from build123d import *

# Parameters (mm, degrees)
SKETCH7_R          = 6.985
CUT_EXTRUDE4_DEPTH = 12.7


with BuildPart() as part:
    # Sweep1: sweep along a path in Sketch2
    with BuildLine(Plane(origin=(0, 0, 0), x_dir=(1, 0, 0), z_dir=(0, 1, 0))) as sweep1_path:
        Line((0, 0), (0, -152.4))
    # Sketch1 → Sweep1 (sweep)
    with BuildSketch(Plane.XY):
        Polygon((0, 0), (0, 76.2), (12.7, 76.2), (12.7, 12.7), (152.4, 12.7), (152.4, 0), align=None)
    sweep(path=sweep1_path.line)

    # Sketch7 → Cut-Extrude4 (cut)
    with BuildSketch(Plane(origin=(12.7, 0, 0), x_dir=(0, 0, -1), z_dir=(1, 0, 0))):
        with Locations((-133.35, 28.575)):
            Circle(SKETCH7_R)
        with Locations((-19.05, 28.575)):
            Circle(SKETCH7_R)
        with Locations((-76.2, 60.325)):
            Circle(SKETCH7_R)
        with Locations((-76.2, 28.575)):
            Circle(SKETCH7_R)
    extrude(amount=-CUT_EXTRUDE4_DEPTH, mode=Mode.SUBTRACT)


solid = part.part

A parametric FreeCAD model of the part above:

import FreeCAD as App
import Part
import Sketcher
from FreeCAD import Vector
Q = App.Units.Quantity


def add_polygon(sketch, points):
    """Adds a closed chain of lines whose ends are joined by coincident constraints."""
    first, n = sketch.GeometryCount, len(points)
    for a, b in zip(points, points[1:] + points[:1]):
        sketch.addGeometry(Part.LineSegment(App.Vector(*a, 0), App.Vector(*b, 0)), False)
    for i in range(n):
        sketch.addConstraint(Sketcher.Constraint("Coincident", first + i, 2, first + (i + 1) % n, 1))

doc = App.newDocument("Part")
params = doc.addObject("Spreadsheet::Sheet", "Params")
for row, (alias, value) in enumerate([
    ("sketch1_width", "6 in"),
    ("sketch1_height", "3 in"),
    ("sketch1_width2", "5.5 in"),
    ("sketch2_height", "6 in"),
    ("sketch3_diameter", "0.55 in"),
    ("pocket1_length", "0.5 in"),
], start=1):
    params.set(f"A{row}", alias)
    params.set(f"B{row}", "=" + value)
    params.setAlias(f"B{row}", alias)

body = doc.addObject("PartDesign::Body", "Body")

# Sketch on XY plane
sketch1 = body.newObject("Sketcher::SketchObject", "Sketch")
sketch1.AttachmentSupport = (doc.getObject("XY_Plane"), [""])
sketch1.MapMode = "FlatFace"
add_polygon(sketch1, [(0, 76.2), (0, 0), (152.4, 0), (152.4, 12.7), (12.7, 12.7), (12.7, 76.2)])  # lines 0-5
sketch1.addConstraint([
    Sketcher.Constraint("Vertical", 0),
    Sketcher.Constraint("Horizontal", 1),
    Sketcher.Constraint("Vertical", 2),
    Sketcher.Constraint("Horizontal", 3),
    Sketcher.Constraint("Vertical", 4),
    Sketcher.Constraint("Horizontal", 5),
    Sketcher.Constraint("Coincident", 0, 2, -1, 1),
    Sketcher.Constraint("Equal", 5, 2),
    Sketcher.Constraint("DistanceX", 1, 1, 1, 2, Q("6 in")),
    Sketcher.Constraint("DistanceY", 0, 2, 0, 1, Q("3 in")),
    Sketcher.Constraint("DistanceX", 3, 2, 3, 1, Q("5.5 in")),
])
sketch1.setExpression("Constraints[14]", "Params.sketch1_width")
sketch1.setExpression("Constraints[15]", "Params.sketch1_height")
sketch1.setExpression("Constraints[16]", "Params.sketch1_width2")

# Sketch on XZ plane
sketch2 = body.newObject("Sketcher::SketchObject", "Sketch001")
sketch2.AttachmentSupport = (doc.getObject("XZ_Plane"), [""])
sketch2.MapMode = "FlatFace"
sketch2.addGeometry(Part.LineSegment(Vector(0, 0, 0), Vector(0, 152.4, 0)), False)
sketch2.addConstraint([
    Sketcher.Constraint("Vertical", 0),
    Sketcher.Constraint("Coincident", 0, 1, -1, 1),
    Sketcher.Constraint("DistanceY", 0, 1, 0, 2, Q("6 in")),
])
sketch2.setExpression("Constraints[2]", "Params.sketch2_height")
doc.recompute()

additivepipe = body.newObject("PartDesign::AdditivePipe", "AdditivePipe")
additivepipe.Profile = sketch1
additivepipe.Spine = (sketch2, ["Edge1"])

# Sketch on YZ plane
sketch3 = body.newObject("Sketcher::SketchObject", "Sketch002")
sketch3.AttachmentSupport = (doc.getObject("YZ_Plane"), [""])
sketch3.MapMode = "FlatFace"
sketch3.AttachmentOffset = App.Placement(Vector(0, 0, 0.5 * 25.4), App.Rotation())
sketch3.addGeometry([
    Part.Circle(Vector(28.575, 133.35, 0), Vector(0, 0, 1), 6.985),
    Part.Circle(Vector(28.575, 19.05, 0), Vector(0, 0, 1), 6.985),
    Part.Circle(Vector(60.325, 76.2, 0), Vector(0, 0, 1), 6.985),
    Part.Circle(Vector(28.575, 76.2, 0), Vector(0, 0, 1), 6.985),
], False)
sketch3.addConstraint([
    Sketcher.Constraint("Equal", 0, 1),
    Sketcher.Constraint("Equal", 1, 2),
    Sketcher.Constraint("Equal", 2, 3),
    Sketcher.Constraint("Horizontal", 2, 3, 3, 3),
    Sketcher.Constraint("Vertical", 0, 3, 1, 3),
    Sketcher.Constraint("Vertical", 1, 3, 3, 3),
    Sketcher.Constraint("Diameter", 0, Q("0.55 in")),
    Sketcher.Constraint("DistanceY", -1, 1, 2, 3, Q("3 in")),
    Sketcher.Constraint("DistanceY", 1, 3, 0, 3, Q("4.5 in")),
    Sketcher.Constraint("DistanceY", -1, 1, 0, 3, Q("5.25 in")),
    Sketcher.Constraint("DistanceX", 0, 3, 2, 3, Q("1.25 in")),
    Sketcher.Constraint("DistanceX", -1, 1, 0, 3, Q("1.125 in")),
])
sketch3.setExpression("Constraints[6]", "Params.sketch3_diameter")
pocket1 = body.newObject("PartDesign::Pocket", "Pocket")
pocket1.Profile = sketch3
pocket1.setExpression("Length", "Params.pocket1_length")

doc.recompute()
